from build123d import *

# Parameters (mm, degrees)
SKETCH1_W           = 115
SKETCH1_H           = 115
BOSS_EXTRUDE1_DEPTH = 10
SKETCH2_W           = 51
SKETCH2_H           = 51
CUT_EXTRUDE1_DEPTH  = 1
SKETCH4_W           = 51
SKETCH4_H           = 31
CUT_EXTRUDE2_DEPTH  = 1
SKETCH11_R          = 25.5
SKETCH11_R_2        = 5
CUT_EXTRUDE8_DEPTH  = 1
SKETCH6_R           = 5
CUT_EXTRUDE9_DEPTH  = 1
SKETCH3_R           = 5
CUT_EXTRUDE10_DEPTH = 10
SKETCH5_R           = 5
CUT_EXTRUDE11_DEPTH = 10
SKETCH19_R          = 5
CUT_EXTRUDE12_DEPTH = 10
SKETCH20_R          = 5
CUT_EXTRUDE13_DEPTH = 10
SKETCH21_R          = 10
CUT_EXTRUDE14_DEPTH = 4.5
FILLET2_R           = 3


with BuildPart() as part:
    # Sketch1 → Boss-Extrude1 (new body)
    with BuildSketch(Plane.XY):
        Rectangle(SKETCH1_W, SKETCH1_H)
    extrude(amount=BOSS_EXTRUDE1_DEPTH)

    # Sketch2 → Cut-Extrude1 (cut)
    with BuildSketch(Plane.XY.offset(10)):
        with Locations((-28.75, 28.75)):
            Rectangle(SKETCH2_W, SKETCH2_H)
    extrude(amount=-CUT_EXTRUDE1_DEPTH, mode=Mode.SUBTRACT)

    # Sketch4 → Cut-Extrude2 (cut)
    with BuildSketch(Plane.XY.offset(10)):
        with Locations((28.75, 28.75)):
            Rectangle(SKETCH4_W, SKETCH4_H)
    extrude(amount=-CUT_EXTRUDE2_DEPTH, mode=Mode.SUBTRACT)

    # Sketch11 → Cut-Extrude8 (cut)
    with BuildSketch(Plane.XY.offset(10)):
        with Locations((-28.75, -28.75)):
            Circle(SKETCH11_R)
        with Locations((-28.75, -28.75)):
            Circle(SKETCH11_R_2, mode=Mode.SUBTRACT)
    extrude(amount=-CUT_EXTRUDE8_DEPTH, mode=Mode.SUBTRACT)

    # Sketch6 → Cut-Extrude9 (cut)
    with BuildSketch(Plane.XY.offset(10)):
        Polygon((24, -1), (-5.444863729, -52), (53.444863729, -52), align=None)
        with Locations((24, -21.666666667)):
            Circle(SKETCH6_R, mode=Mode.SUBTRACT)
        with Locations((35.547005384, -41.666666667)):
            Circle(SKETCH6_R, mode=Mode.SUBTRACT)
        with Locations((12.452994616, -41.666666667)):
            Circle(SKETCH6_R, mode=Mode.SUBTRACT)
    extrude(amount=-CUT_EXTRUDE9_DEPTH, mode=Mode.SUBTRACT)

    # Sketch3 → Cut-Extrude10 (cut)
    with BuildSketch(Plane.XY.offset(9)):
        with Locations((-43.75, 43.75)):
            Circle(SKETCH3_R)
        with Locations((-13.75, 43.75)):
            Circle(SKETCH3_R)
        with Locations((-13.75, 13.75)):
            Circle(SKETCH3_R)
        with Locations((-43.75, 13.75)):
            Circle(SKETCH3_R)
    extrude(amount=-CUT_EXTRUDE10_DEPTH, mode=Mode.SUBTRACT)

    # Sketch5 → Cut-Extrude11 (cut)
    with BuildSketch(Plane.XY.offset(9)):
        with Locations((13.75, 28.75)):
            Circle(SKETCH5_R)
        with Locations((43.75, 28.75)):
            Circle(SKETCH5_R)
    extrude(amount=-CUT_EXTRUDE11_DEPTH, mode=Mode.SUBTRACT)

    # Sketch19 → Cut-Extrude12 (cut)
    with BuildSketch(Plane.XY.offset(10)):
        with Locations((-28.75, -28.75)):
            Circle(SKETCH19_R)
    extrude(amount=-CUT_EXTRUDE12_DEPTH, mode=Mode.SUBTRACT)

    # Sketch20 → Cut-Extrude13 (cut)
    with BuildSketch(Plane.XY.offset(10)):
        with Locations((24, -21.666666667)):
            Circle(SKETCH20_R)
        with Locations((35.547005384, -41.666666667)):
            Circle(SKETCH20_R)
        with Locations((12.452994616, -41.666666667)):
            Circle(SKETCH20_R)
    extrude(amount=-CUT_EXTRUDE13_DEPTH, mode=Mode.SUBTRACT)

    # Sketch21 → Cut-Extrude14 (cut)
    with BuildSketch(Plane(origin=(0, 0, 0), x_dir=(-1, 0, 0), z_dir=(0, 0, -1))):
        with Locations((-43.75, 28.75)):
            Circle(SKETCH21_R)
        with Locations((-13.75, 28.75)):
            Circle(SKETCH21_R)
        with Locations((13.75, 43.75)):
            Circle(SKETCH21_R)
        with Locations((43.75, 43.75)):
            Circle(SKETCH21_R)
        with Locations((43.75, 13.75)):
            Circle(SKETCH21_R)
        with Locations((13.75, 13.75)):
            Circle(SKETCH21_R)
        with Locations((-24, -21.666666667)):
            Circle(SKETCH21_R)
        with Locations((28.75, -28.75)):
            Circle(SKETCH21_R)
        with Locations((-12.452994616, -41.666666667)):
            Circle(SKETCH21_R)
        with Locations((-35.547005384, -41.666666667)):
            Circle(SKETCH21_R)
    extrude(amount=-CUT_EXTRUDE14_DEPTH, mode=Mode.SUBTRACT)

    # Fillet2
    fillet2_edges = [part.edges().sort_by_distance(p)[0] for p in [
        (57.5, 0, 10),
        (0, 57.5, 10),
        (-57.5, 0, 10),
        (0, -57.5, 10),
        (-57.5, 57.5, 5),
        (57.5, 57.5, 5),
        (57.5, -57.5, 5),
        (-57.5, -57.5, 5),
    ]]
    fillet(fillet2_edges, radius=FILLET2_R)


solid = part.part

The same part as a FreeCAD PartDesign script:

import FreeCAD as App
import Part
import Sketcher
Q = App.Units.Quantity


def edges_at(feature, points):
    """Names of the edges that pass closest to the given points."""
    edges = feature.Shape.Edges
    near = lambda p: min(range(len(edges)), key=lambda i: edges[i].distToShape(Part.Vertex(*p))[0])
    return sorted({f"Edge{near(p) + 1}" for p in points})

doc = App.newDocument("Part")
body = doc.addObject("PartDesign::Body", "Body")

sketch1 = body.newObject("Sketcher::SketchObject", "Sketch")
sketch1.AttachmentSupport = (doc.getObject("XY_Plane"), [""])
sketch1.MapMode = "FlatFace"
sketch1.addGeometry([
    Part.LineSegment(App.Vector(-58, 58, 0), App.Vector(-58, -58, 0)),
    Part.LineSegment(App.Vector(-58, -58, 0), App.Vector(58, -58, 0)),
    Part.LineSegment(App.Vector(58, -58, 0), App.Vector(58, 58, 0)),
    Part.LineSegment(App.Vector(58, 58, 0), App.Vector(-58, 58, 0)),
], False)
sketch1.addConstraint([
    Sketcher.Constraint("Coincident", 0, 2, 1, 1),
    Sketcher.Constraint("Coincident", 1, 2, 2, 1),
    Sketcher.Constraint("Coincident", 2, 2, 3, 1),
    Sketcher.Constraint("Coincident", 3, 2, 0, 1),
    Sketcher.Constraint("Vertical", 0),
    Sketcher.Constraint("Horizontal", 1),
    Sketcher.Constraint("Vertical", 2),
    Sketcher.Constraint("Horizontal", 3),
    Sketcher.Constraint("Symmetric", 0, 2, 2, 2, -1, 1),
    Sketcher.Constraint("Equal", 3, 0),
    Sketcher.Constraint("DistanceX", 1, 1, 1, 2, 115.0),
])
pad1 = body.newObject("PartDesign::Pad", "Pad")
pad1.Profile = sketch1
pad1.Length = 10

sketch2 = body.newObject("Sketcher::SketchObject", "Sketch001")
sketch2.AttachmentSupport = (doc.getObject("XY_Plane"), [""])
sketch2.MapMode = "FlatFace"
sketch2.AttachmentOffset = App.Placement(App.Vector(0, 0, 10), App.Rotation())
sketch2.addGeometry([
    Part.LineSegment(App.Vector(-54, 54, 0), App.Vector(-54, 3, 0)),
    Part.LineSegment(App.Vector(-54, 3, 0), App.Vector(-3, 3, 0)),
    Part.LineSegment(App.Vector(-3, 3, 0), App.Vector(-3, 54, 0)),
    Part.LineSegment(App.Vector(-3, 54, 0), App.Vector(-54, 54, 0)),
], False)
sketch2.addConstraint([
    Sketcher.Constraint("Coincident", 0, 2, 1, 1),
    Sketcher.Constraint("Coincident", 1, 2, 2, 1),
    Sketcher.Constraint("Coincident", 2, 2, 3, 1),
    Sketcher.Constraint("Coincident", 3, 2, 0, 1),
    Sketcher.Constraint("Vertical", 0),
    Sketcher.Constraint("Horizontal", 1),
    Sketcher.Constraint("Vertical", 2),
    Sketcher.Constraint("Horizontal", 3),
    Sketcher.Constraint("Equal", 3, 0),
    Sketcher.Constraint("DistanceX", 1, 1, 1, 2, 51.0),
    Sketcher.Constraint("DistanceX", 0, 2, -1, 1, 54.25),
    Sketcher.Constraint("DistanceY", -1, 1, 0, 2, 3.25),
])
pocket1 = body.newObject("PartDesign::Pocket", "Pocket")
pocket1.Profile = sketch2
pocket1.Length = 1

sketch3 = body.newObject("Sketcher::SketchObject", "Sketch002")
sketch3.AttachmentSupport = (doc.getObject("XY_Plane"), [""])
sketch3.MapMode = "FlatFace"
sketch3.AttachmentOffset = App.Placement(App.Vector(0, 0, 10), App.Rotation())
sketch3.addGeometry([
    Part.LineSegment(App.Vector(3, 44, 0), App.Vector(3, 13, 0)),
    Part.LineSegment(App.Vector(3, 13, 0), App.Vector(54, 13, 0)),
    Part.LineSegment(App.Vector(54, 13, 0), App.Vector(54, 44, 0)),
    Part.LineSegment(App.Vector(54, 44, 0), App.Vector(3, 44, 0)),
], False)
sketch3.addConstraint([
    Sketcher.Constraint("Coincident", 0, 2, 1, 1),
    Sketcher.Constraint("Coincident", 1, 2, 2, 1),
    Sketcher.Constraint("Coincident", 2, 2, 3, 1),
    Sketcher.Constraint("Coincident", 3, 2, 0, 1),
    Sketcher.Constraint("Vertical", 0),
    Sketcher.Constraint("Horizontal", 1),
    Sketcher.Constraint("Vertical", 2),
    Sketcher.Constraint("Horizontal", 3),
    Sketcher.Constraint("DistanceX", 1, 1, 1, 2, 51.0),
    Sketcher.Constraint("DistanceY", 0, 2, 0, 1, 31.0),
    Sketcher.Constraint("DistanceX", -1, 1, 0, 2, 3.25),
    Sketcher.Constraint("DistanceY", -1, 1, 0, 2, 13.25),
])
pocket2 = body.newObject("PartDesign::Pocket", "Pocket001")
pocket2.Profile = sketch3
pocket2.Length = 1

sketch4 = body.newObject("Sketcher::SketchObject", "Sketch003")
sketch4.AttachmentSupport = (doc.getObject("XY_Plane"), [""])
sketch4.MapMode = "FlatFace"
sketch4.AttachmentOffset = App.Placement(App.Vector(0, 0, 10), App.Rotation())
sketch4.addGeometry([
    Part.Circle(App.Vector(-29, -29, 0), App.Vector(0, 0, 1), 26),
    Part.Circle(App.Vector(-29, -29, 0), App.Vector(0, 0, 1), 5),
], False)
sketch4.addConstraint([
    Sketcher.Constraint("Coincident", 1, 3, 0, 3),
    Sketcher.Constraint("Diameter", 0, 51.0),
    Sketcher.Constraint("Diameter", 1, 10.0),
    Sketcher.Constraint("DistanceX", 0, 3, -1, 1, 28.75),
    Sketcher.Constraint("DistanceY", 0, 3, -1, 1, 28.75),
])
pocket3 = body.newObject("PartDesign::Pocket", "Pocket002")
pocket3.Profile = sketch4
pocket3.Length = 1

sketch5 = body.newObject("Sketcher::SketchObject", "Sketch004")
sketch5.AttachmentSupport = (doc.getObject("XY_Plane"), [""])
sketch5.MapMode = "FlatFace"
sketch5.AttachmentOffset = App.Placement(App.Vector(0, 0, 10), App.Rotation())
sketch5.addGeometry([
    Part.LineSegment(App.Vector(24, -1, 0), App.Vector(-5, -52, 0)),
    Part.LineSegment(App.Vector(-5, -52, 0), App.Vector(53, -52, 0)),
    Part.LineSegment(App.Vector(53, -52, 0), App.Vector(24, -1, 0)),
    Part.Circle(App.Vector(12, -42, 0), App.Vector(0, 0, 1), 5),
    Part.Circle(App.Vector(36, -42, 0), App.Vector(0, 0, 1), 5),
    Part.Circle(App.Vector(24, -22, 0), App.Vector(0, 0, 1), 5),
], False)
sketch5.addConstraint([
    Sketcher.Constraint("Coincident", 0, 2, 1, 1),
    Sketcher.Constraint("Coincident", 1, 2, 2, 1),
    Sketcher.Constraint("Coincident", 2, 2, 0, 1),
    Sketcher.Constraint("Horizontal", 1),
    Sketcher.Constraint("Equal", 3, 4),
    Sketcher.Constraint("Equal", 4, 5),
    Sketcher.Constraint("Horizontal", 3, 3, 4, 3),
    Sketcher.Constraint("Vertical", 5, 3, 2, 2),
    Sketcher.Constraint("Equal", 0, 2),
    Sketcher.Constraint("Diameter", 3, 10.0),
    Sketcher.Constraint("Angle", 0, Q("-120 deg")),
    Sketcher.Constraint("DistanceX", -1, 1, 5, 3, 24.0),
    Sketcher.Constraint("DistanceY", 0, 2, -1, 1, 52.0),
    Sketcher.Constraint("DistanceY", 2, 2, -1, 1, 1.0),
    Sketcher.Constraint("DistanceY", 3, 3, 5, 3, 20.0),
    Sketcher.Constraint("DistanceX", 3, 3, 4, 3, 23.094011),
    Sketcher.Constraint("DistanceX", 0, 2, 3, 3, 17.897858),
    Sketcher.Constraint("DistanceY", 3, 3, -1, 1, 41.666667),
])
pocket4 = body.newObject("PartDesign::Pocket", "Pocket003")
pocket4.Profile = sketch5
pocket4.Length = 1

sketch6 = body.newObject("Sketcher::SketchObject", "Sketch005")
sketch6.AttachmentSupport = (doc.getObject("XY_Plane"), [""])
sketch6.MapMode = "FlatFace"
sketch6.AttachmentOffset = App.Placement(App.Vector(0, 0, 9), App.Rotation())
sketch6.addGeometry([
    Part.Circle(App.Vector(-44, 44, 0), App.Vector(0, 0, 1), 5),
    Part.Circle(App.Vector(-14, 44, 0), App.Vector(0, 0, 1), 5),
    Part.Circle(App.Vector(-14, 14, 0), App.Vector(0, 0, 1), 5),
    Part.Circle(App.Vector(-44, 14, 0), App.Vector(0, 0, 1), 5),
], False)
sketch6.addConstraint([
    Sketcher.Constraint("Equal", 0, 1),
    Sketcher.Constraint("Equal", 1, 2),
    Sketcher.Constraint("Equal", 2, 3),
    Sketcher.Constraint("Horizontal", 0, 3, 1, 3),
    Sketcher.Constraint("Horizontal", 2, 3, 3, 3),
    Sketcher.Constraint("Vertical", 1, 3, 2, 3),
    Sketcher.Constraint("Vertical", 0, 3, 3, 3),
    Sketcher.Constraint("Diameter", 0, 10.0),
    Sketcher.Constraint("DistanceX", 0, 3, 1, 3, 30.0),
    Sketcher.Constraint("DistanceY", 2, 3, 1, 3, 30.0),
    Sketcher.Constraint("DistanceX", 0, 3, -1, 1, 43.75),
    Sketcher.Constraint("DistanceY", -1, 1, 0, 3, 43.75),
])
pocket5 = body.newObject("PartDesign::Pocket", "Pocket004")
pocket5.Profile = sketch6
pocket5.Length = 10

sketch7 = body.newObject("Sketcher::SketchObject", "Sketch006")
sketch7.AttachmentSupport = (doc.getObject("XY_Plane"), [""])
sketch7.MapMode = "FlatFace"
sketch7.AttachmentOffset = App.Placement(App.Vector(0, 0, 9), App.Rotation())
sketch7.addGeometry([
    Part.Circle(App.Vector(14, 29, 0), App.Vector(0, 0, 1), 5),
    Part.Circle(App.Vector(44, 29, 0), App.Vector(0, 0, 1), 5),
], False)
sketch7.addConstraint([
    Sketcher.Constraint("Equal", 0, 1),
    Sketcher.Constraint("Horizontal", 0, 3, 1, 3),
    Sketcher.Constraint("Diameter", 0, 10.0),
    Sketcher.Constraint("DistanceX", 0, 3, 1, 3, 30.0),
    Sketcher.Constraint("DistanceX", -1, 1, 0, 3, 13.75),
    Sketcher.Constraint("DistanceY", -1, 1, 0, 3, 28.75),
])
pocket6 = body.newObject("PartDesign::Pocket", "Pocket005")
pocket6.Profile = sketch7
pocket6.Length = 10

sketch8 = body.newObject("Sketcher::SketchObject", "Sketch007")
sketch8.AttachmentSupport = (doc.getObject("XY_Plane"), [""])
sketch8.MapMode = "FlatFace"
sketch8.AttachmentOffset = App.Placement(App.Vector(0, 0, 10), App.Rotation())
sketch8.addGeometry(Part.Circle(App.Vector(-29, -29, 0), App.Vector(0, 0, 1), 5), False)
sketch8.addConstraint([
    Sketcher.Constraint("Diameter", 0, 10.0),
    Sketcher.Constraint("DistanceX", 0, 3, -1, 1, 28.75),
    Sketcher.Constraint("DistanceY", 0, 3, -1, 1, 28.75),
])
pocket7 = body.newObject("PartDesign::Pocket", "Pocket006")
pocket7.Profile = sketch8
pocket7.Length = 10

sketch9 = body.newObject("Sketcher::SketchObject", "Sketch008")
sketch9.AttachmentSupport = (doc.getObject("XY_Plane"), [""])
sketch9.MapMode = "FlatFace"
sketch9.AttachmentOffset = App.Placement(App.Vector(0, 0, 10), App.Rotation())
sketch9.addGeometry([
    Part.Circle(App.Vector(24, -22, 0), App.Vector(0, 0, 1), 5),
    Part.Circle(App.Vector(36, -42, 0), App.Vector(0, 0, 1), 5),
    Part.Circle(App.Vector(12, -42, 0), App.Vector(0, 0, 1), 5),
], False)
sketch9.addConstraint([
    Sketcher.Constraint("Equal", 0, 1),
    Sketcher.Constraint("Equal", 1, 2),
    Sketcher.Constraint("Horizontal", 1, 3, 2, 3),
    Sketcher.Constraint("Diameter", 0, 10.0),
    Sketcher.Constraint("DistanceX", -1, 1, 0, 3, 24.0),
    Sketcher.Constraint("DistanceY", 1, 3, 0, 3, 20.0),
    Sketcher.Constraint("DistanceX", 2, 3, 1, 3, 23.094011),
    Sketcher.Constraint("DistanceY", 0, 3, -1, 1, 21.666667),
    Sketcher.Constraint("DistanceX", -1, 1, 1, 3, 35.547005),
])
pocket8 = body.newObject("PartDesign::Pocket", "Pocket007")
pocket8.Profile = sketch9
pocket8.Length = 10

sketch10 = body.newObject("Sketcher::SketchObject", "Sketch009")
sketch10.AttachmentSupport = (doc.getObject("XY_Plane"), [""])
sketch10.MapMode = "FlatFace"
sketch10.addGeometry([
    Part.Circle(App.Vector(44, 29, 0), App.Vector(0, 0, 1), 10),
    Part.Circle(App.Vector(14, 29, 0), App.Vector(0, 0, 1), 10),
    Part.Circle(App.Vector(-14, 44, 0), App.Vector(0, 0, 1), 10),
    Part.Circle(App.Vector(-44, 44, 0), App.Vector(0, 0, 1), 10),
    Part.Circle(App.Vector(-44, 14, 0), App.Vector(0, 0, 1), 10),
    Part.Circle(App.Vector(-14, 14, 0), App.Vector(0, 0, 1), 10),
    Part.Circle(App.Vector(24, -22, 0), App.Vector(0, 0, 1), 10),
    Part.Circle(App.Vector(-29, -29, 0), App.Vector(0, 0, 1), 10),
    Part.Circle(App.Vector(12, -42, 0), App.Vector(0, 0, 1), 10),
    Part.Circle(App.Vector(36, -42, 0), App.Vector(0, 0, 1), 10),
], False)
sketch10.addConstraint([
    Sketcher.Constraint("Equal", 0, 1),
    Sketcher.Constraint("Equal", 1, 2),
    Sketcher.Constraint("Equal", 2, 3),
    Sketcher.Constraint("Equal", 3, 4),
    Sketcher.Constraint("Equal", 4, 5),
    Sketcher.Constraint("Equal", 5, 6),
    Sketcher.Constraint("Equal", 6, 7),
    Sketcher.Constraint("Equal", 7, 8),
    Sketcher.Constraint("Equal", 8, 9),
    Sketcher.Constraint("Horizontal", 0, 3, 1, 3),
    Sketcher.Constraint("Horizontal", 2, 3, 3, 3),
    Sketcher.Constraint("Horizontal", 4, 3, 5, 3),
    Sketcher.Constraint("Horizontal", 8, 3, 9, 3),
    Sketcher.Constraint("Vertical", 3, 3, 4, 3),
    Sketcher.Constraint("Vertical", 2, 3, 5, 3),
    Sketcher.Constraint("Diameter", 0, 20.0),
    Sketcher.Constraint("DistanceX", -1, 1, 6, 3, 24.0),
    Sketcher.Constraint("DistanceX", 1, 3, 0, 3, 30.0),
    Sketcher.Constraint("DistanceY", 1, 3, 2, 3, 15.0),
    Sketcher.Constraint("DistanceX", 3, 3, 2, 3, 30.0),
    Sketcher.Constraint("DistanceY", 4, 3, 3, 3, 30.0),
    Sketcher.Constraint("DistanceX", 4, 3, 7, 3, 15.0),
    Sketcher.Constraint("DistanceY", 8, 3, 6, 3, 20.0),
    Sketcher.Constraint("DistanceX", 2, 3, 1, 3, 27.5),
    Sketcher.Constraint("DistanceY", 7, 3, 4, 3, 42.5),
    Sketcher.Constraint("DistanceX", -1, 1, 0, 3, 43.75),
    Sketcher.Constraint("DistanceY", -1, 1, 0, 3, 28.75),
    Sketcher.Constraint("DistanceX", 8, 3, 9, 3, 23.094011),
    Sketcher.Constraint("DistanceY", 6, 3, -1, 1, 21.666667),
    Sketcher.Constraint("DistanceX", -1, 1, 8, 3, 12.452995),
])
pocket9 = body.newObject("PartDesign::Pocket", "Pocket008")
pocket9.Profile = sketch10
pocket9.Length = 4.5
pocket9.Reversed = True
doc.recompute()

fillet = body.newObject("PartDesign::Fillet", "Fillet")
fillet.Base = (pocket9, edges_at(pocket9, [
    (57.5, 0, 10),
    (0, 57.5, 10),
    (-57.5, 0, 10),
    (0, -57.5, 10),
    (-57.5, 57.5, 5),
    (57.5, 57.5, 5),
    (57.5, -57.5, 5),
    (-57.5, -57.5, 5),
]))
fillet.Radius = 3

doc.recompute()
